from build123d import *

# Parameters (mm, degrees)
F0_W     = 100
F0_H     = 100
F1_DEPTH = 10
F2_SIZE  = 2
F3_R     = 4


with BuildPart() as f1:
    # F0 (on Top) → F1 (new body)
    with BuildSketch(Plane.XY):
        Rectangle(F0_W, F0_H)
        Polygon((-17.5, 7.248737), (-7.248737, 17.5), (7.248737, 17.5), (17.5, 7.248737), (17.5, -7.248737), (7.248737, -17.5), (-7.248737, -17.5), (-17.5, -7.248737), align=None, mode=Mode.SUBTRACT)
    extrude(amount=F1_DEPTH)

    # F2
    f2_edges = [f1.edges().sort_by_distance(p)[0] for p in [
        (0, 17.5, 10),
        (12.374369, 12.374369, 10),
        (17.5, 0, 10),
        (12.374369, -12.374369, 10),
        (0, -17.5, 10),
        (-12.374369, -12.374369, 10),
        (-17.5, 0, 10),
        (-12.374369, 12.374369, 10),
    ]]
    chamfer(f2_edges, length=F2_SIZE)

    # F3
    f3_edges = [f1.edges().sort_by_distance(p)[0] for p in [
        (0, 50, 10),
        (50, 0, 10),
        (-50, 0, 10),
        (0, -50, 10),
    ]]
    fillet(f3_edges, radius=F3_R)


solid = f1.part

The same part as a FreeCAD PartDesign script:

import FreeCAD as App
import Part
import Sketcher
Q = App.Units.Quantity


def edges_at(feature, points):
    """Names of the edges that pass closest to the given points."""
    edges = feature.Shape.Edges
    near = lambda p: min(range(len(edges)), key=lambda i: edges[i].distToShape(Part.Vertex(*p))[0])
    return sorted({f"Edge{near(p) + 1}" for p in points})


def add_polygon(sketch, points):
    """Adds a closed chain of lines whose ends are joined by coincident constraints."""
    first, n = sketch.GeometryCount, len(points)
    for a, b in zip(points, points[1:] + points[:1]):
        sketch.addGeometry(Part.LineSegment(App.Vector(*a, 0), App.Vector(*b, 0)), False)
    for i in range(n):
        sketch.addConstraint(Sketcher.Constraint("Coincident", first + i, 2, first + (i + 1) % n, 1))

doc = App.newDocument("Part")
body = doc.addObject("PartDesign::Body", "Body")

# Sketch on XY plane
sketch1 = body.newObject("Sketcher::SketchObject", "Sketch")
sketch1.AttachmentSupport = (doc.getObject("XY_Plane"), [""])
sketch1.MapMode = "FlatFace"
add_polygon(sketch1, [(-50, 50), (-50, -50), (50, -50), (50, 50)])  # lines 0-3
add_polygon(sketch1, [(-18, -7), (-18, 7), (-7, 18), (7, 18), (18, 7), (18, -7), (7, -18), (-7, -18)])  # lines 4-11
sketch1.addConstraint([
    Sketcher.Constraint("Vertical", 0),
    Sketcher.Constraint("Horizontal", 1),
    Sketcher.Constraint("Vertical", 2),
    Sketcher.Constraint("Horizontal", 3),
    Sketcher.Constraint("Vertical", 4),
    Sketcher.Constraint("Horizontal", 6),
    Sketcher.Constraint("Vertical", 8),
    Sketcher.Constraint("Horizontal", 10),
    Sketcher.Constraint("Symmetric", 0, 2, 2, 2, -1, 1),
    Sketcher.Constraint("Symmetric", 4, 2, 8, 2, -1, 1),
    Sketcher.Constraint("Symmetric", 5, 2, 9, 2, -1, 1),
    Sketcher.Constraint("Perpendicular", 5, 7),
    Sketcher.Constraint("Perpendicular", 9, 11),
    Sketcher.Constraint("Horizontal", 4, 2, 7, 2),
    Sketcher.Constraint("Horizontal", 8, 2, 11, 2),
    Sketcher.Constraint("Vertical", 6, 2, 9, 2),
    Sketcher.Constraint("Equal", 3, 0),
    Sketcher.Constraint("Equal", 10, 4),
    Sketcher.Constraint("DistanceX", 1, 1, 1, 2, Q("100 mm")),
    Sketcher.Constraint("DistanceX", 4, 2, 7, 2, Q("35 mm")),
    Sketcher.Constraint("DistanceX", 6, 1, 6, 2, Q("14.497474 mm")),
])
pad1 = body.newObject("PartDesign::Pad", "Pad")
pad1.Profile = sketch1
pad1.Length = 10
doc.recompute()

chamfer = body.newObject("PartDesign::Chamfer", "Chamfer")
chamfer.Base = (pad1, edges_at(pad1, [
    (0, 17.5, 10),
    (12.374, 12.374, 10),
    (17.5, 0, 10),
    (12.374, -12.374, 10),
    (0, -17.5, 10),
    (-12.374, -12.374, 10),
    (-17.5, 0, 10),
    (-12.374, 12.374, 10),
]))
chamfer.Size = 2
doc.recompute()

fillet = body.newObject("PartDesign::Fillet", "Fillet")
fillet.Base = (chamfer, edges_at(chamfer, [
    (0, 50, 10),
    (50, 0, 10),
    (-50, 0, 10),
    (0, -50, 10),
]))
fillet.Radius = 4

doc.recompute()
